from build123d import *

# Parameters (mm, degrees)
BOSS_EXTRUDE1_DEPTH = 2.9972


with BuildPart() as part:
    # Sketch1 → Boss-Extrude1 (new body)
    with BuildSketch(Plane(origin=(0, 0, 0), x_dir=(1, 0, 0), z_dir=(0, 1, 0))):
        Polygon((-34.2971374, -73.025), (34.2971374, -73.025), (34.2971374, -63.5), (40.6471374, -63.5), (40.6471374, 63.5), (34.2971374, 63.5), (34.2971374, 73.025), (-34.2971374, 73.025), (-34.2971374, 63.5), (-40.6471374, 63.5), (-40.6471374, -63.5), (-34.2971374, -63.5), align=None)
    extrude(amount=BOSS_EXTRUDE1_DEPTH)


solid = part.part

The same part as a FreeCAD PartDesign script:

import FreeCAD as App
import Part
import Sketcher
from FreeCAD import Vector
Q = App.Units.Quantity


def add_polygon(sketch, points):
    """Adds a closed chain of lines whose ends are joined by coincident constraints."""
    first, n = sketch.GeometryCount, len(points)
    for a, b in zip(points, points[1:] + points[:1]):
        sketch.addGeometry(Part.LineSegment(App.Vector(*a, 0), App.Vector(*b, 0)), False)
    for i in range(n):
        sketch.addConstraint(Sketcher.Constraint("Coincident", first + i, 2, first + (i + 1) % n, 1))

doc = App.newDocument("Part")
body = doc.addObject("PartDesign::Body", "Body")

sketch1 = body.newObject("Sketcher::SketchObject", "Sketch")
sketch1.AttachmentSupport = (doc.getObject("XZ_Plane"), [""])
sketch1.MapMode = "FlatFace"
add_polygon(sketch1, [(-34, 73), (34, 73), (34, 64), (41, 64), (41, -64), (34, -64), (34, -73), (-34, -73), (-34, -64), (-41, -64), (-41, 64), (-34, 64)])
sketch1.addConstraint(Sketcher.Constraint("Horizontal", 0))
sketch1.addConstraint(Sketcher.Constraint("Vertical", 1))
sketch1.addConstraint(Sketcher.Constraint("Horizontal", 2))
sketch1.addConstraint(Sketcher.Constraint("Vertical", 3))
sketch1.addConstraint(Sketcher.Constraint("Horizontal", 4))
sketch1.addConstraint(Sketcher.Constraint("Vertical", 5))
sketch1.addConstraint(Sketcher.Constraint("Horizontal", 6))
sketch1.addConstraint(Sketcher.Constraint("Vertical", 7))
sketch1.addConstraint(Sketcher.Constraint("Horizontal", 8))
sketch1.addConstraint(Sketcher.Constraint("Vertical", 9))
sketch1.addConstraint(Sketcher.Constraint("Horizontal", 10))
sketch1.addConstraint(Sketcher.Constraint("Vertical", 11))
sketch1.addConstraint(Sketcher.Constraint("Symmetric", 0, 2, 6, 2, -1, 1))
sketch1.addConstraint(Sketcher.Constraint("Symmetric", 2, 2, 8, 2, -1, 1))
sketch1.addConstraint(Sketcher.Constraint("Symmetric", 4, 2, 10, 2, -1, 1))
sketch1.addConstraint(Sketcher.Constraint("Symmetric", 4, 2, 7, 2, -2))
sketch1.addConstraint(Sketcher.Constraint("DistanceY", 3, 2, 3, 1, Q("5 in")))
sketch1.addConstraint(Sketcher.Constraint("DistanceX", 2, 1, 2, 2, Q("0.25 in")))
sketch1.addConstraint(Sketcher.Constraint("DistanceY", 1, 2, 1, 1, Q("0.375 in")))
sketch1.addConstraint(Sketcher.Constraint("DistanceX", 0, 1, 0, 2, 68.594275))
pad1 = body.newObject("PartDesign::Pad", "Pad")
pad1.Profile = sketch1
pad1.Length = Q("0.118 in")
pad1.Reversed = True

doc.recompute()
